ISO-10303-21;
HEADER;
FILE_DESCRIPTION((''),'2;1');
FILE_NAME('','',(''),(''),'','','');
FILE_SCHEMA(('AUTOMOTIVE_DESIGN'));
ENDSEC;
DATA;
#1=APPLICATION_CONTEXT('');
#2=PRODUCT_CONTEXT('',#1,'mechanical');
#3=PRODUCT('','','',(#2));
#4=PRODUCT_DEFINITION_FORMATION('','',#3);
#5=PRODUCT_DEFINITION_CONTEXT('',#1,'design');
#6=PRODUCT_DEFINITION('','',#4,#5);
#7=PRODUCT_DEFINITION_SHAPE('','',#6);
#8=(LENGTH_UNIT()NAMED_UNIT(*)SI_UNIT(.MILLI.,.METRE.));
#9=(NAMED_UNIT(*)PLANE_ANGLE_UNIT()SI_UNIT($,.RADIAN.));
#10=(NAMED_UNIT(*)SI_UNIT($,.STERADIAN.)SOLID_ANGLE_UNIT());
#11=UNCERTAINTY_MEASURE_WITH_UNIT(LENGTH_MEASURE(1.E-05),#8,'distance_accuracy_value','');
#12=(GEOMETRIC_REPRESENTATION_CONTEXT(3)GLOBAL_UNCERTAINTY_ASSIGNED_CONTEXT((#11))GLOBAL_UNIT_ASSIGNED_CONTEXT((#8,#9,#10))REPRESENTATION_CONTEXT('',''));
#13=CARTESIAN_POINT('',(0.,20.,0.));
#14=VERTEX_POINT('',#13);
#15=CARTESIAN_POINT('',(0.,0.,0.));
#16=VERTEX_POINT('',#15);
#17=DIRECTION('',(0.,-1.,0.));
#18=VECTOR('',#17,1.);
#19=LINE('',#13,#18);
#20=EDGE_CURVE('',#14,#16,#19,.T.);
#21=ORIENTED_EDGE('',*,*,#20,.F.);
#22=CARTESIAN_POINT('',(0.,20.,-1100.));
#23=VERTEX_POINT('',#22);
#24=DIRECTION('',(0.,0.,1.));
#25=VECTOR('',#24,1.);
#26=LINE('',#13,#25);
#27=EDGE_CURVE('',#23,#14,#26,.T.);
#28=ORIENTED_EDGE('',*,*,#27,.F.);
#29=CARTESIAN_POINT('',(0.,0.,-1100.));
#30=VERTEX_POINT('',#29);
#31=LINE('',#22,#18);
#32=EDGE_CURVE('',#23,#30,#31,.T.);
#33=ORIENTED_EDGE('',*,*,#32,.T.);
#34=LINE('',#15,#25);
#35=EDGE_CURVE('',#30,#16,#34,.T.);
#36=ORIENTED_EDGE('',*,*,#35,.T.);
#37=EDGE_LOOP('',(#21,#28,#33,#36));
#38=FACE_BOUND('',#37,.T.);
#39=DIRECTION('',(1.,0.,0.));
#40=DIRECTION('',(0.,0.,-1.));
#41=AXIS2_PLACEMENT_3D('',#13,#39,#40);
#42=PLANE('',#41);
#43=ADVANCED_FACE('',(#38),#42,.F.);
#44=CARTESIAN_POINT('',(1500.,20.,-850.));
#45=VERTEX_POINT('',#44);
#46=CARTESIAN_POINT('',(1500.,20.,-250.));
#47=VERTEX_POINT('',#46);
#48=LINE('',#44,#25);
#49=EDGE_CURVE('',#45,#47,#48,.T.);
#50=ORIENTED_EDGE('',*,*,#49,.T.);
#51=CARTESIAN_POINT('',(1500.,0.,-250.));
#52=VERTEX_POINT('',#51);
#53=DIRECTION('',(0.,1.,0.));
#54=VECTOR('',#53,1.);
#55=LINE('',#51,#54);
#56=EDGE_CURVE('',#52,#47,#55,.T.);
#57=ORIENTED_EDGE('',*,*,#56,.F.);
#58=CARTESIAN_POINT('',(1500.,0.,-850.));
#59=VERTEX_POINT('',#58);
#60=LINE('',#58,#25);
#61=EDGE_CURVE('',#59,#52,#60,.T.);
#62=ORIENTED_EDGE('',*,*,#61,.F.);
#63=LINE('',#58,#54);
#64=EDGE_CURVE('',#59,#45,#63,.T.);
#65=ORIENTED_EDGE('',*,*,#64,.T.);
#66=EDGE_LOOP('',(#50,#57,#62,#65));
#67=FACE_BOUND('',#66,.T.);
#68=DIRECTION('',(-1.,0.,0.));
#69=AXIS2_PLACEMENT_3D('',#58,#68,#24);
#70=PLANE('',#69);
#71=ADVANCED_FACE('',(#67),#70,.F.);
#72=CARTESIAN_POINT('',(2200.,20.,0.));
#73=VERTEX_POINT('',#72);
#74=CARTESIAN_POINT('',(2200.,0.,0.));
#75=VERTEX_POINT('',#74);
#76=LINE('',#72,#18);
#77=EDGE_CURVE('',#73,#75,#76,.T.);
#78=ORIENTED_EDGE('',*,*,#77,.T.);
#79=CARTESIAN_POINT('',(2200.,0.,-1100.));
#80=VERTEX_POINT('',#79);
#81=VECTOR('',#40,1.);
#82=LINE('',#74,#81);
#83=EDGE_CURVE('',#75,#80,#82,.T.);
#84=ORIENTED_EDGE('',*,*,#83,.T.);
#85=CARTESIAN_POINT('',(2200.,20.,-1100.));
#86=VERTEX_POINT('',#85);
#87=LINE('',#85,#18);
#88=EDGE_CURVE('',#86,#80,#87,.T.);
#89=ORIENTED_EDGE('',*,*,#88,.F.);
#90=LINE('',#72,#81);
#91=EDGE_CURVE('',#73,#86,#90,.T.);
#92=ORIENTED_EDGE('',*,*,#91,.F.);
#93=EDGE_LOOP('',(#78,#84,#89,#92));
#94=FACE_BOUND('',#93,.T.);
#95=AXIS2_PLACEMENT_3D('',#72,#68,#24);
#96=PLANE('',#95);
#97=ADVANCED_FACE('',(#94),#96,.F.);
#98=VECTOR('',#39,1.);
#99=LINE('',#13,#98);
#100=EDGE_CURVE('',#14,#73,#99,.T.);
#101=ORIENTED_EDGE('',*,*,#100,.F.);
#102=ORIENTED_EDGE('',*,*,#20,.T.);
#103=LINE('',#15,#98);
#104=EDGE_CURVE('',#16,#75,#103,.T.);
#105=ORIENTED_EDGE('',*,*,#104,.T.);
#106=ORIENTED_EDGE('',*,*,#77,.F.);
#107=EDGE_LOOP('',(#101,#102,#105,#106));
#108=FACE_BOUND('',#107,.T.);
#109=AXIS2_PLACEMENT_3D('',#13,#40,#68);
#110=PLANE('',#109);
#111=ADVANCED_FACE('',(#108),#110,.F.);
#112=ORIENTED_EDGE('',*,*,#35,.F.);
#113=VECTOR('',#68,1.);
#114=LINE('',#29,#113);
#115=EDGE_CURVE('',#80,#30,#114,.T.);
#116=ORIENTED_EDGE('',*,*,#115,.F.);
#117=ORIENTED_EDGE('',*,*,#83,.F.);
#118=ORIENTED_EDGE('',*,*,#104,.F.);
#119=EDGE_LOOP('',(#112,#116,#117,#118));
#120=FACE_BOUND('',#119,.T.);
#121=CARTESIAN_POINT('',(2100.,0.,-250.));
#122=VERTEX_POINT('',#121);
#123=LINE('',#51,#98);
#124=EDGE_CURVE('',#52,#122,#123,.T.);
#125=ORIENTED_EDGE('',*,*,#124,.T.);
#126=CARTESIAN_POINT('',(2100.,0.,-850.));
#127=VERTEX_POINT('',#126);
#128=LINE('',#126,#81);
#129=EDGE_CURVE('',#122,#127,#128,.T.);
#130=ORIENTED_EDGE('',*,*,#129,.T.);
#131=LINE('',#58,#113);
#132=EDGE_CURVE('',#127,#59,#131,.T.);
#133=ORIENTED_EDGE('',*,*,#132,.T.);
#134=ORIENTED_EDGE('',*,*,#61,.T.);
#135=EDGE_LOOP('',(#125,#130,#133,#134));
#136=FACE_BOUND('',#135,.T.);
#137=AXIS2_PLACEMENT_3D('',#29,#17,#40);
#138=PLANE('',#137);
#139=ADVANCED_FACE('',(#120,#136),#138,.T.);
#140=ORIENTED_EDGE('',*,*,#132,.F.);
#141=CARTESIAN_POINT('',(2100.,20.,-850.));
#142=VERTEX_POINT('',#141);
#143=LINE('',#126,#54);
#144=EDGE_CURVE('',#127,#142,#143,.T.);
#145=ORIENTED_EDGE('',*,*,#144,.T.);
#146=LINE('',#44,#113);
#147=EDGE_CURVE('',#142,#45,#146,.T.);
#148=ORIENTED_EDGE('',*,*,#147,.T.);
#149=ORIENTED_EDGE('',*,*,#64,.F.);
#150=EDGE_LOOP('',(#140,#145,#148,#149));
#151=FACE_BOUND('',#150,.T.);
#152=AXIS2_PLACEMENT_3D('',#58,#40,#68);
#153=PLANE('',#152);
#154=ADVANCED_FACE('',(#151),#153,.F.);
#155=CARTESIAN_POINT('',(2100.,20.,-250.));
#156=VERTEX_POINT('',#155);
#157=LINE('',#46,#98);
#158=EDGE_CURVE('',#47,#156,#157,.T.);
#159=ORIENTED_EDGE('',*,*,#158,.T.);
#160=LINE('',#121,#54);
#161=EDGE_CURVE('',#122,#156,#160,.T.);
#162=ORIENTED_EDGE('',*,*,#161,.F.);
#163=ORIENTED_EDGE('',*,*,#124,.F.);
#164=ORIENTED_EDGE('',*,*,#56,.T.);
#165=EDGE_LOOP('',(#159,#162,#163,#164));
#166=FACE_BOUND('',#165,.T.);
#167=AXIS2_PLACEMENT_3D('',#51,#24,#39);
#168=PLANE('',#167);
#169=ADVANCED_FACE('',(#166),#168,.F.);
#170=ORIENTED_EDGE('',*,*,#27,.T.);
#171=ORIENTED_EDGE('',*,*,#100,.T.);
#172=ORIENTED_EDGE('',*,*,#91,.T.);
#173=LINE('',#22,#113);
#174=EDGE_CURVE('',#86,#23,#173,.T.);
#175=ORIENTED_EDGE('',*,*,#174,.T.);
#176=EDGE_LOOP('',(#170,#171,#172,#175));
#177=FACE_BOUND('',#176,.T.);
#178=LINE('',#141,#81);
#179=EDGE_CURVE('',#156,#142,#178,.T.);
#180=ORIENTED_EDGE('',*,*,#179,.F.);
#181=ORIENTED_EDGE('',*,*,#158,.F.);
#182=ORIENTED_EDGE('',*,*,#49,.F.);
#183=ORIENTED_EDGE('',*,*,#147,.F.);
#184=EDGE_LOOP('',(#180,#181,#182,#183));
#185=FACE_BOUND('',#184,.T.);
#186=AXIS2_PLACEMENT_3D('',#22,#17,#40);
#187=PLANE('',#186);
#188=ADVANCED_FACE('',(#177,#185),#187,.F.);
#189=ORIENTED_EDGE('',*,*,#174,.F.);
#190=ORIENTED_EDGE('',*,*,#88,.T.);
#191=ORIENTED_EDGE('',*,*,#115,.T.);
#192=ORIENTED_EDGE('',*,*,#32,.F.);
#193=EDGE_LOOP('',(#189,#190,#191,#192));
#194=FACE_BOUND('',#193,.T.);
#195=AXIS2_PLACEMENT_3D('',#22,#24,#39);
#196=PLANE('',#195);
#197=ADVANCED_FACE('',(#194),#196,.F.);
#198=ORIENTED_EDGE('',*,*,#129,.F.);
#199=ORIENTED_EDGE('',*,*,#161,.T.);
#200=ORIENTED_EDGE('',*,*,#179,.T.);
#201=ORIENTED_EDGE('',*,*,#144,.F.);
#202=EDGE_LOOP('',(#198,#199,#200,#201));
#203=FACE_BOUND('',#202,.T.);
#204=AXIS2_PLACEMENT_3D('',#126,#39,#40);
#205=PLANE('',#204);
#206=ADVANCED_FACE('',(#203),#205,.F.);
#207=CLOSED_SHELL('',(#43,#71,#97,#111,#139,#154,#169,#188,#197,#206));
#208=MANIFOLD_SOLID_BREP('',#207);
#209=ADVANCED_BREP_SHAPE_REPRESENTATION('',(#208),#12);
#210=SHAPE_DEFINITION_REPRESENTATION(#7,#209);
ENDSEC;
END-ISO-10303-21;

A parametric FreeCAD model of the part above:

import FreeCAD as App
import Part
import Sketcher
Q = App.Units.Quantity

doc = App.newDocument("Part")
body = doc.addObject("PartDesign::Body", "Body")

sketch1 = body.newObject("Sketcher::SketchObject", "Sketch")
sketch1.AttachmentSupport = (doc.getObject("XZ_Plane"), [""])
sketch1.MapMode = "FlatFace"
sketch1.addGeometry([
    Part.LineSegment(App.Vector(0, -1100, 0), App.Vector(0, 0, 0)),
    Part.LineSegment(App.Vector(0, 0, 0), App.Vector(2200, 0, 0)),
    Part.LineSegment(App.Vector(2200, 0, 0), App.Vector(2200, -1100, 0)),
    Part.LineSegment(App.Vector(2200, -1100, 0), App.Vector(0, -1100, 0)),
], False)
sketch1.addConstraint([
    Sketcher.Constraint("Coincident", 0, 2, 1, 1),
    Sketcher.Constraint("Coincident", 1, 2, 2, 1),
    Sketcher.Constraint("Coincident", 2, 2, 3, 1),
    Sketcher.Constraint("Coincident", 3, 2, 0, 1),
    Sketcher.Constraint("Vertical", 0),
    Sketcher.Constraint("Horizontal", 1),
    Sketcher.Constraint("Vertical", 2),
    Sketcher.Constraint("Horizontal", 3),
    Sketcher.Constraint("Coincident", 0, 2, -1, 1),
    Sketcher.Constraint("DistanceX", 1, 1, 1, 2, Q("2200 mm")),
    Sketcher.Constraint("DistanceY", 0, 1, 0, 2, Q("1100 mm")),
])
pad1 = body.newObject("PartDesign::Pad", "Pad")
pad1.Profile = sketch1
pad1.Length = 20
pad1.Reversed = True

sketch2 = body.newObject("Sketcher::SketchObject", "Sketch001")
sketch2.AttachmentSupport = (doc.getObject("XZ_Plane"), [""])
sketch2.MapMode = "FlatFace"
sketch2.AttachmentOffset = App.Placement(App.Vector(0, 0, -20), App.Rotation())
sketch2.addGeometry([
    Part.LineSegment(App.Vector(2100, -250, 0), App.Vector(2100, -850, 0)),
    Part.LineSegment(App.Vector(2100, -850, 0), App.Vector(1500, -850, 0)),
    Part.LineSegment(App.Vector(1500, -850, 0), App.Vector(1500, -250, 0)),
    Part.LineSegment(App.Vector(1500, -250, 0), App.Vector(2100, -250, 0)),
], False)
sketch2.addConstraint([
    Sketcher.Constraint("Coincident", 0, 2, 1, 1),
    Sketcher.Constraint("Coincident", 1, 2, 2, 1),
    Sketcher.Constraint("Coincident", 2, 2, 3, 1),
    Sketcher.Constraint("Coincident", 3, 2, 0, 1),
    Sketcher.Constraint("Vertical", 0),
    Sketcher.Constraint("Horizontal", 1),
    Sketcher.Constraint("Vertical", 2),
    Sketcher.Constraint("Horizontal", 3),
    Sketcher.Constraint("Equal", 3, 0),
    Sketcher.Constraint("DistanceX", 1, 2, 1, 1, Q("600 mm")),
    Sketcher.Constraint("DistanceX", -1, 1, 0, 2, Q("2100 mm")),
    Sketcher.Constraint("DistanceY", 0, 2, -1, 1, Q("850 mm")),
])
pocket1 = body.newObject("PartDesign::Pocket", "Pocket")
pocket1.Profile = sketch2
pocket1.Type = "ThroughAll"
pocket1.Reversed = True

doc.recompute()
